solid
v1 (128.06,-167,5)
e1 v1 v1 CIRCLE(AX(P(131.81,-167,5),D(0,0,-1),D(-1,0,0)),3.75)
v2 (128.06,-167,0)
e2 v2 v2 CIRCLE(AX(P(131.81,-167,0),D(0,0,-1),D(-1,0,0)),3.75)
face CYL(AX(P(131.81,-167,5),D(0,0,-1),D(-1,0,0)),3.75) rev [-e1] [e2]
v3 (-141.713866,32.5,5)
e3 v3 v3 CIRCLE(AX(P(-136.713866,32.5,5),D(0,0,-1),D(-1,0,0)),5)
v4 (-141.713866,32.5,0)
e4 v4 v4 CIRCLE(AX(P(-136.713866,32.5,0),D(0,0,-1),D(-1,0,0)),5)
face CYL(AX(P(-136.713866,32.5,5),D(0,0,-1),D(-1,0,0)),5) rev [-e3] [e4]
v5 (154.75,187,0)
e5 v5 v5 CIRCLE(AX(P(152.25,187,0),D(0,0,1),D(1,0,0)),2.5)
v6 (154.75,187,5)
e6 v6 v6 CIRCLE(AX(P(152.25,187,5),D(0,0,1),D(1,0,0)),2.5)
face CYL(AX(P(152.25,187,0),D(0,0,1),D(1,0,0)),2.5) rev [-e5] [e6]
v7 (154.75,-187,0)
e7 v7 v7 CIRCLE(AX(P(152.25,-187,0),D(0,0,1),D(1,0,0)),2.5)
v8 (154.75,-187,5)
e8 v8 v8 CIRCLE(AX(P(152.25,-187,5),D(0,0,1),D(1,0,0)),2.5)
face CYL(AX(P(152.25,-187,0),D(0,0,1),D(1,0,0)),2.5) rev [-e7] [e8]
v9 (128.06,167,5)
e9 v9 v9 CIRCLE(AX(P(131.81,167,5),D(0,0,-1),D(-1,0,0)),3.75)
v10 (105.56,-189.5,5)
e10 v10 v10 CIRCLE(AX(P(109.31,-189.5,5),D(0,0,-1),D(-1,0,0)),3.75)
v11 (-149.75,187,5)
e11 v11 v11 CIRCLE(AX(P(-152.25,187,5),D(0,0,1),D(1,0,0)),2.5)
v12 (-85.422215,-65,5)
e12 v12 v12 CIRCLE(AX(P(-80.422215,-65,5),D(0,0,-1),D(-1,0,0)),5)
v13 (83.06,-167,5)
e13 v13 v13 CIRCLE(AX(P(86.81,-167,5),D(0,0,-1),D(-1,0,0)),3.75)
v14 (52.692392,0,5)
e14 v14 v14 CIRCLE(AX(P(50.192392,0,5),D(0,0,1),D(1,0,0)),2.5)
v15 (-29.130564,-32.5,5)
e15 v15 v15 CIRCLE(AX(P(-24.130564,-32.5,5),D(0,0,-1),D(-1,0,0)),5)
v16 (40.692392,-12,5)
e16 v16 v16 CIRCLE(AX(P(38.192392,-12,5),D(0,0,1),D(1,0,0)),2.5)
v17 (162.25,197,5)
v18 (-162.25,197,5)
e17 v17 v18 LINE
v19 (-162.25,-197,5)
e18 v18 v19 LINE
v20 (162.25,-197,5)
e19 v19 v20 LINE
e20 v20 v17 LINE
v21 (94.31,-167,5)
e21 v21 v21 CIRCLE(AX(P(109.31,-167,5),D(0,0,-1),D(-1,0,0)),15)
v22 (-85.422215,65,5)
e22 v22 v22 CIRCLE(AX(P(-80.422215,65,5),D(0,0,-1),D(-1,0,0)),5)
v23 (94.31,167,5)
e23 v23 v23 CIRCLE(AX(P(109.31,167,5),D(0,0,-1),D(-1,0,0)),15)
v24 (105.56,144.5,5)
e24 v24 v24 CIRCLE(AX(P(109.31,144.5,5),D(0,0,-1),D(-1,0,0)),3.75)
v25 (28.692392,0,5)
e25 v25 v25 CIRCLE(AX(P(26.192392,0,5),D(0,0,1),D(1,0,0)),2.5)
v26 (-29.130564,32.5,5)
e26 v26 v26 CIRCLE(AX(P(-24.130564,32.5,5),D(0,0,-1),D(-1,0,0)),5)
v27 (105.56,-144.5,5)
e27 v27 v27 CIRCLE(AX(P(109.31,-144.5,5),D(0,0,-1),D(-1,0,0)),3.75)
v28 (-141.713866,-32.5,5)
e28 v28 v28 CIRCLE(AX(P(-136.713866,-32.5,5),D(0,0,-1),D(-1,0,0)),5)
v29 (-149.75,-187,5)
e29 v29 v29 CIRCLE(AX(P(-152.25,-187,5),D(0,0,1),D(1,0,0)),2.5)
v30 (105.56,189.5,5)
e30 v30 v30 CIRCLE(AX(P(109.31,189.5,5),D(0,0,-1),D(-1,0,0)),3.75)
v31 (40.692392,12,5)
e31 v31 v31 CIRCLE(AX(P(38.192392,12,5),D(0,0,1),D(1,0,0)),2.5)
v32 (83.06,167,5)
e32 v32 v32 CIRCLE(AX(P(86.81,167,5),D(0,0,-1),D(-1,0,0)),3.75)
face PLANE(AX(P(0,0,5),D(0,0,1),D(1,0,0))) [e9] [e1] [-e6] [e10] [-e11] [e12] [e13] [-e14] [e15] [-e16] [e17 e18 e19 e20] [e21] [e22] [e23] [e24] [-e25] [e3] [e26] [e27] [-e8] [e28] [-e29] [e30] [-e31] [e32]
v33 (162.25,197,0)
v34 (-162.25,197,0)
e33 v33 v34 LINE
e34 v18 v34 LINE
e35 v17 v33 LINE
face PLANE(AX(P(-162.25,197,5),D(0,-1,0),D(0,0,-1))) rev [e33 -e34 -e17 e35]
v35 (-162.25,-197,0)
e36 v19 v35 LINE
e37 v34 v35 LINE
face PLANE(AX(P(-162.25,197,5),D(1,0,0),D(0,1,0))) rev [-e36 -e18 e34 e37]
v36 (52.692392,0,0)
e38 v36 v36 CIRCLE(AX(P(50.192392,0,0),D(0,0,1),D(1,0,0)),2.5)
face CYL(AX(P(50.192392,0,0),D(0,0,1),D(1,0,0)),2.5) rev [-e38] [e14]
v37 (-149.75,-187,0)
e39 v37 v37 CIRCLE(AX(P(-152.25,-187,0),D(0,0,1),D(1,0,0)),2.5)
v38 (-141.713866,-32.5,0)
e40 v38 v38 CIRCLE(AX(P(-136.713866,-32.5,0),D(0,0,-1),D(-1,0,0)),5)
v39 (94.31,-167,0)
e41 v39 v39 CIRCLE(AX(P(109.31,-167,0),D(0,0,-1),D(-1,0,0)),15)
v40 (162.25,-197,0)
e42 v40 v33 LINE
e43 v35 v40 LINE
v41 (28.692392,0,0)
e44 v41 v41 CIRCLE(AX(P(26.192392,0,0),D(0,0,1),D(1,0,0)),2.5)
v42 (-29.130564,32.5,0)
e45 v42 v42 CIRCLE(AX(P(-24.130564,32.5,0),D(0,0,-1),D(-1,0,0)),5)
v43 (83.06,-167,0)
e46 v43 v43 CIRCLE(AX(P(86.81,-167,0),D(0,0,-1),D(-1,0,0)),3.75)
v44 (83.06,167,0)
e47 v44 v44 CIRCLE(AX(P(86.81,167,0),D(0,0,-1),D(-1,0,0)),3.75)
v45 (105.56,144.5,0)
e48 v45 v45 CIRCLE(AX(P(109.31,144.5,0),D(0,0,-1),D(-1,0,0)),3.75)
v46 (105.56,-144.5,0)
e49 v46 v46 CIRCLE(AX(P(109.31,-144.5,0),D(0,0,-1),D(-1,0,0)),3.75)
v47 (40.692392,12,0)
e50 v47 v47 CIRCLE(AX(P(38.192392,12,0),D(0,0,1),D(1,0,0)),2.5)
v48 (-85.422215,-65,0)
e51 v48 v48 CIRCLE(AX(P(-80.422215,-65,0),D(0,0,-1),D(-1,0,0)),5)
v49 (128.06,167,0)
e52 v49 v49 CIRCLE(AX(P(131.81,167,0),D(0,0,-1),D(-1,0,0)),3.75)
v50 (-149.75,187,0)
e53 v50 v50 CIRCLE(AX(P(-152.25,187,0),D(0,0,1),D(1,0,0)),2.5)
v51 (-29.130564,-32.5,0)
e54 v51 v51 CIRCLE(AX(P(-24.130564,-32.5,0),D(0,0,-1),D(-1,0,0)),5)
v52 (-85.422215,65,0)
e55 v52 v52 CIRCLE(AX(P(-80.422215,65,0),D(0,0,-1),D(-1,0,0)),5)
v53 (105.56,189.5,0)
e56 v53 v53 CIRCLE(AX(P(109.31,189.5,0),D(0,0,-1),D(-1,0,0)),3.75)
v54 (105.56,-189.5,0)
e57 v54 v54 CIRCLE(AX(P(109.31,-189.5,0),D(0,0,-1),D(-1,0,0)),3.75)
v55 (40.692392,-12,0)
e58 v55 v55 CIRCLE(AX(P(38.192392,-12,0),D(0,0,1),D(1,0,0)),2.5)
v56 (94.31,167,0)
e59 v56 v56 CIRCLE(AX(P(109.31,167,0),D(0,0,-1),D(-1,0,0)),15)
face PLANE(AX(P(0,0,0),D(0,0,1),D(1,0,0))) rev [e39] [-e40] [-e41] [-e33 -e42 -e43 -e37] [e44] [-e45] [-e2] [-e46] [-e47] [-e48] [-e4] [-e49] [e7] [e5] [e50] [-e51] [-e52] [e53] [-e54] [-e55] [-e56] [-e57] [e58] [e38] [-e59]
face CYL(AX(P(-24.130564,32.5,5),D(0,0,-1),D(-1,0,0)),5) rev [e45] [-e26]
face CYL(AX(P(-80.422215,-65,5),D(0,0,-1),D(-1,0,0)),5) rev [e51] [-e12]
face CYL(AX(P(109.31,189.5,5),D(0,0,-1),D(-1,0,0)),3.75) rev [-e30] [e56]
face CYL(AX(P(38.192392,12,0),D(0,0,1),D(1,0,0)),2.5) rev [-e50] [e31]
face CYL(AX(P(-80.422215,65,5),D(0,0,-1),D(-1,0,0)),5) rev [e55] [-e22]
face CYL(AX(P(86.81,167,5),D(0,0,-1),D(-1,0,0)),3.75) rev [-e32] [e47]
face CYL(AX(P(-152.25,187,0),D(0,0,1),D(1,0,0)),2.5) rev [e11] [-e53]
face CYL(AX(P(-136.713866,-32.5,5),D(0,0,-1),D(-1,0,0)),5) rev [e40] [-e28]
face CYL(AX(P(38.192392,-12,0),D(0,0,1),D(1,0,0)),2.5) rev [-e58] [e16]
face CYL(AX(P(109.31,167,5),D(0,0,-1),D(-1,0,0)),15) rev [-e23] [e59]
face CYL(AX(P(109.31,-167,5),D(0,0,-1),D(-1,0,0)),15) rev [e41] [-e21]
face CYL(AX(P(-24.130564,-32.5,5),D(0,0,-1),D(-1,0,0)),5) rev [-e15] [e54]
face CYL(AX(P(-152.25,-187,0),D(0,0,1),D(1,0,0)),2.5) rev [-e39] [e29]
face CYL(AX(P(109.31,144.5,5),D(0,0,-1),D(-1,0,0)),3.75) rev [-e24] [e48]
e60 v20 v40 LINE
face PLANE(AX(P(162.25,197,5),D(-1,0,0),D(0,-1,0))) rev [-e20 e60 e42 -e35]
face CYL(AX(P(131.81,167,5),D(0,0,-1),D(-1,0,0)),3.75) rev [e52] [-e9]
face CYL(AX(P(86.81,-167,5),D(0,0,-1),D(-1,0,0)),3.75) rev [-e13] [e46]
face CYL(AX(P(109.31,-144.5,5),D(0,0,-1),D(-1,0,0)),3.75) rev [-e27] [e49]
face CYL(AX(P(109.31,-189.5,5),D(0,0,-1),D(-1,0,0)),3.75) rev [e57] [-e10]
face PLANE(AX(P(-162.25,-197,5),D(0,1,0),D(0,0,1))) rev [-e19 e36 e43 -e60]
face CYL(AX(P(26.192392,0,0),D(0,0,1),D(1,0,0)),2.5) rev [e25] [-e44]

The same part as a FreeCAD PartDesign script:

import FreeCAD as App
import Part
import Sketcher

V = App.Vector
Q = App.Units.Quantity

doc = App.newDocument("Part")
params = doc.addObject("Spreadsheet::Sheet", "Params")
for row, (alias, value) in enumerate([
    ("sketch1_height", "394 mm"),
    ("sketch1_width", "324.5 mm"),
    ("pad1_length", "5 mm"),
    ("sketch2_diameter", "5 mm"),
    ("sketch3_diameter", "10 mm"),
    ("pocket2_length", "5 mm"),
    ("sketch4_diameter", "5 mm"),
    ("pocket3_length", "5 mm"),
    ("sketch5_diameter", "30 mm"),
    ("sketch5_diameter2", "7.5 mm"),
], start=1):
    params.set(f"A{row}", alias)
    params.set(f"B{row}", "=" + value)
    params.setAlias(f"B{row}", alias)

body = doc.addObject("PartDesign::Body", "Body")

sketch1 = doc.addObject("Sketcher::SketchObject", "Sketch")
body.addObject(sketch1)
sketch1.AttachmentSupport = (doc.XY_Plane, [""])
sketch1.MapMode = "FlatFace"
sketch1.addGeometry(Part.LineSegment(V(-162, 197, 0), V(-162, -197, 0)), False)
sketch1.addGeometry(Part.LineSegment(V(-162, -197, 0), V(162, -197, 0)), False)
sketch1.addGeometry(Part.LineSegment(V(162, -197, 0), V(162, 197, 0)), False)
sketch1.addGeometry(Part.LineSegment(V(162, 197, 0), V(-162, 197, 0)), False)
sketch1.addConstraint(Sketcher.Constraint("Coincident", 0, 2, 1, 1))
sketch1.addConstraint(Sketcher.Constraint("Coincident", 1, 2, 2, 1))
sketch1.addConstraint(Sketcher.Constraint("Coincident", 2, 2, 3, 1))
sketch1.addConstraint(Sketcher.Constraint("Coincident", 3, 2, 0, 1))
sketch1.addConstraint(Sketcher.Constraint("Vertical", 0))
sketch1.addConstraint(Sketcher.Constraint("Horizontal", 1))
sketch1.addConstraint(Sketcher.Constraint("Vertical", 2))
sketch1.addConstraint(Sketcher.Constraint("Horizontal", 3))
sketch1.addConstraint(Sketcher.Constraint("Symmetric", 0, 2, 2, 2, -1, 1))
sketch1.addConstraint(Sketcher.Constraint("DistanceY", 0, 2, 0, 1, Q("394 mm")))
sketch1.addConstraint(Sketcher.Constraint("DistanceX", 1, 1, 1, 2, Q("324.5 mm")))
sketch1.setExpression("Constraints[9]", "Params.sketch1_height")
sketch1.setExpression("Constraints[10]", "Params.sketch1_width")
pad1 = doc.addObject("PartDesign::Pad", "Pad")
body.addObject(pad1)
pad1.Profile = sketch1
pad1.setExpression("Length", "Params.pad1_length")

sketch2 = doc.addObject("Sketcher::SketchObject", "Sketch001")
body.addObject(sketch2)
sketch2.AttachmentSupport = (doc.XY_Plane, [""])
sketch2.MapMode = "FlatFace"
sketch2.AttachmentOffset = App.Placement(V(0, 0, 5), App.Rotation())
sketch2.addGeometry(Part.Circle(V(152.2, 187, 0), V(0, 0, 1), 2.5), False)
sketch2.addGeometry(Part.Circle(V(-152.2, 187, 0), V(0, 0, 1), 2.5), False)
sketch2.addGeometry(Part.Circle(V(-152.2, -187, 0), V(0, 0, 1), 2.5), False)
sketch2.addGeometry(Part.Circle(V(152.2, -187, 0), V(0, 0, 1), 2.5), False)
sketch2.addConstraint(Sketcher.Constraint("Equal", 0, 1))
sketch2.addConstraint(Sketcher.Constraint("Equal", 1, 2))
sketch2.addConstraint(Sketcher.Constraint("Equal", 2, 3))
sketch2.addConstraint(Sketcher.Constraint("Symmetric", 0, 3, 2, 3, -1, 1))
sketch2.addConstraint(Sketcher.Constraint("Symmetric", 1, 3, 3, 3, -1, 1))
sketch2.addConstraint(Sketcher.Constraint("Symmetric", 0, 3, 1, 3, -2))
sketch2.addConstraint(Sketcher.Constraint("Diameter", 0, Q("5 mm")))
sketch2.addConstraint(Sketcher.Constraint("DistanceY", -1, 1, 0, 3, Q("187 mm")))
sketch2.addConstraint(Sketcher.Constraint("DistanceX", 1, 3, 0, 3, Q("304.5 mm")))
sketch2.setExpression("Constraints[6]", "Params.sketch2_diameter")
pocket1 = doc.addObject("PartDesign::Pocket", "Pocket")
body.addObject(pocket1)
pocket1.Profile = sketch2
pocket1.Type = "ThroughAll"

sketch3 = doc.addObject("Sketcher::SketchObject", "Sketch002")
body.addObject(sketch3)
sketch3.AttachmentSupport = (doc.XY_Plane, [""])
sketch3.MapMode = "FlatFace"
sketch3.addGeometry(Part.Circle(V(-80, 65, 0), V(0, 0, 1), 5), False)
sketch3.addGeometry(Part.Circle(V(-137, 32, 0), V(0, 0, 1), 5), False)
sketch3.addGeometry(Part.Circle(V(-137, -32, 0), V(0, 0, 1), 5), False)
sketch3.addGeometry(Part.Circle(V(-80, -65, 0), V(0, 0, 1), 5), False)
sketch3.addGeometry(Part.Circle(V(-24, -32, 0), V(0, 0, 1), 5), False)
sketch3.addGeometry(Part.Circle(V(-24, 32, 0), V(0, 0, 1), 5), False)
sketch3.addConstraint(Sketcher.Constraint("Equal", 0, 1))
sketch3.addConstraint(Sketcher.Constraint("Equal", 1, 2))
sketch3.addConstraint(Sketcher.Constraint("Equal", 2, 3))
sketch3.addConstraint(Sketcher.Constraint("Equal", 3, 4))
sketch3.addConstraint(Sketcher.Constraint("Equal", 4, 5))
sketch3.addConstraint(Sketcher.Constraint("Symmetric", 1, 3, 2, 3, -1))
sketch3.addConstraint(Sketcher.Constraint("Symmetric", 0, 3, 3, 3, -1))
sketch3.addConstraint(Sketcher.Constraint("Symmetric", 4, 3, 5, 3, -1))
sketch3.addConstraint(Sketcher.Constraint("Horizontal", 2, 3, 4, 3))
sketch3.addConstraint(Sketcher.Constraint("Diameter", 0, Q("10 mm")))
sketch3.addConstraint(Sketcher.Constraint("DistanceY", -1, 1, 0, 3, Q("65 mm")))
sketch3.addConstraint(Sketcher.Constraint("DistanceY", 2, 3, 1, 3, Q("65 mm")))
sketch3.addConstraint(Sketcher.Constraint("DistanceX", 1, 3, 0, 3, Q("56.291651 mm")))
sketch3.addConstraint(Sketcher.Constraint("DistanceX", 3, 3, 4, 3, Q("56.291651 mm")))
sketch3.addConstraint(Sketcher.Constraint("DistanceX", 0, 3, -1, 1, Q("80.422215 mm")))
sketch3.setExpression("Constraints[9]", "Params.sketch3_diameter")
pocket2 = doc.addObject("PartDesign::Pocket", "Pocket001")
body.addObject(pocket2)
pocket2.Profile = sketch3
pocket2.setExpression("Length", "Params.pocket2_length")
pocket2.Reversed = True

sketch4 = doc.addObject("Sketcher::SketchObject", "Sketch003")
body.addObject(sketch4)
sketch4.AttachmentSupport = (doc.XY_Plane, [""])
sketch4.MapMode = "FlatFace"
sketch4.AttachmentOffset = App.Placement(V(0, 0, 5), App.Rotation())
sketch4.addGeometry(Part.Circle(V(38.2, 12, 0), V(0, 0, 1), 2.5), False)
sketch4.addGeometry(Part.Circle(V(50.2, 0, 0), V(0, 0, 1), 2.5), False)
sketch4.addGeometry(Part.Circle(V(38.2, -12, 0), V(0, 0, 1), 2.5), False)
sketch4.addGeometry(Part.Circle(V(26.2, 0, 0), V(0, 0, 1), 2.5), False)
sketch4.addConstraint(Sketcher.Constraint("Equal", 0, 1))
sketch4.addConstraint(Sketcher.Constraint("Equal", 1, 2))
sketch4.addConstraint(Sketcher.Constraint("Equal", 2, 3))
sketch4.addConstraint(Sketcher.Constraint("Symmetric", 0, 3, 2, 3, -1))
sketch4.addConstraint(Sketcher.Constraint("PointOnObject", 1, 3, -1))
sketch4.addConstraint(Sketcher.Constraint("PointOnObject", 3, 3, -1))
sketch4.addConstraint(Sketcher.Constraint("Diameter", 0, Q("5 mm")))
sketch4.addConstraint(Sketcher.Constraint("DistanceY", -1, 1, 0, 3, Q("12 mm")))
sketch4.addConstraint(Sketcher.Constraint("DistanceX", 0, 3, 1, 3, Q("12 mm")))
sketch4.addConstraint(Sketcher.Constraint("DistanceX", 3, 3, 0, 3, Q("12 mm")))
sketch4.addConstraint(Sketcher.Constraint("DistanceX", -1, 1, 0, 3, Q("38.192392 mm")))
sketch4.setExpression("Constraints[6]", "Params.sketch4_diameter")
pocket3 = doc.addObject("PartDesign::Pocket", "Pocket002")
body.addObject(pocket3)
pocket3.Profile = sketch4
pocket3.setExpression("Length", "Params.pocket3_length")

sketch5 = doc.addObject("Sketcher::SketchObject", "Sketch004")
body.addObject(sketch5)
sketch5.AttachmentSupport = (doc.XY_Plane, [""])
sketch5.MapMode = "FlatFace"
sketch5.addGeometry(Part.Circle(V(109.3, 167, 0), V(0, 0, 1), 15), False)
sketch5.addGeometry(Part.Circle(V(109.3, -167, 0), V(0, 0, 1), 15), False)
sketch5.addGeometry(Part.Circle(V(109.3, 189.5, 0), V(0, 0, 1), 3.8), False)
sketch5.addGeometry(Part.Circle(V(109.3, -144.5, 0), V(0, 0, 1), 3.8), False)
sketch5.addGeometry(Part.Circle(V(86.8, -167, 0), V(0, 0, 1), 3.8), False)
sketch5.addGeometry(Part.Circle(V(109.3, -189.5, 0), V(0, 0, 1), 3.8), False)
sketch5.addGeometry(Part.Circle(V(131.8, -167, 0), V(0, 0, 1), 3.8), False)
sketch5.addGeometry(Part.Circle(V(86.8, 167, 0), V(0, 0, 1), 3.8), False)
sketch5.addGeometry(Part.Circle(V(109.3, 144.5, 0), V(0, 0, 1), 3.8), False)
sketch5.addGeometry(Part.Circle(V(131.8, 167, 0), V(0, 0, 1), 3.8), False)
sketch5.addConstraint(Sketcher.Constraint("Equal", 0, 1))
sketch5.addConstraint(Sketcher.Constraint("Equal", 2, 3))
sketch5.addConstraint(Sketcher.Constraint("Equal", 3, 4))
sketch5.addConstraint(Sketcher.Constraint("Equal", 4, 5))
sketch5.addConstraint(Sketcher.Constraint("Equal", 5, 6))
sketch5.addConstraint(Sketcher.Constraint("Equal", 6, 7))
sketch5.addConstraint(Sketcher.Constraint("Equal", 7, 8))
sketch5.addConstraint(Sketcher.Constraint("Equal", 8, 9))
sketch5.addConstraint(Sketcher.Constraint("Symmetric", 0, 3, 1, 3, -1))
sketch5.addConstraint(Sketcher.Constraint("Symmetric", 2, 3, 5, 3, -1))
sketch5.addConstraint(Sketcher.Constraint("Symmetric", 4, 3, 7, 3, -1))
sketch5.addConstraint(Sketcher.Constraint("Symmetric", 3, 3, 8, 3, -1))
sketch5.addConstraint(Sketcher.Constraint("Symmetric", 6, 3, 9, 3, -1))
sketch5.addConstraint(Sketcher.Constraint("Horizontal", 1, 3, 4, 3))
sketch5.addConstraint(Sketcher.Constraint("Horizontal", 4, 3, 6, 3))
sketch5.addConstraint(Sketcher.Constraint("Vertical", 1, 3, 2, 3))
sketch5.addConstraint(Sketcher.Constraint("Vertical", 2, 3, 3, 3))
sketch5.addConstraint(Sketcher.Constraint("Diameter", 0, Q("30 mm")))
sketch5.addConstraint(Sketcher.Constraint("Diameter", 2, Q("7.5 mm")))
sketch5.addConstraint(Sketcher.Constraint("DistanceY", -1, 1, 0, 3, Q("167 mm")))
sketch5.addConstraint(Sketcher.Constraint("DistanceY", 3, 3, 2, 3, Q("334 mm")))
sketch5.addConstraint(Sketcher.Constraint("DistanceY", 5, 3, 3, 3, Q("45 mm")))
sketch5.addConstraint(Sketcher.Constraint("DistanceX", 4, 3, 6, 3, Q("45 mm")))
sketch5.addConstraint(Sketcher.Constraint("DistanceX", 4, 3, 1, 3, Q("22.5 mm")))
sketch5.addConstraint(Sketcher.Constraint("DistanceX", -1, 1, 0, 3, Q("109.31 mm")))
sketch5.setExpression("Constraints[17]", "Params.sketch5_diameter")
sketch5.setExpression("Constraints[18]", "Params.sketch5_diameter2")
pocket4 = doc.addObject("PartDesign::Pocket", "Pocket003")
body.addObject(pocket4)
pocket4.Profile = sketch5
pocket4.Type = "ThroughAll"
pocket4.Reversed = True

doc.recompute()
